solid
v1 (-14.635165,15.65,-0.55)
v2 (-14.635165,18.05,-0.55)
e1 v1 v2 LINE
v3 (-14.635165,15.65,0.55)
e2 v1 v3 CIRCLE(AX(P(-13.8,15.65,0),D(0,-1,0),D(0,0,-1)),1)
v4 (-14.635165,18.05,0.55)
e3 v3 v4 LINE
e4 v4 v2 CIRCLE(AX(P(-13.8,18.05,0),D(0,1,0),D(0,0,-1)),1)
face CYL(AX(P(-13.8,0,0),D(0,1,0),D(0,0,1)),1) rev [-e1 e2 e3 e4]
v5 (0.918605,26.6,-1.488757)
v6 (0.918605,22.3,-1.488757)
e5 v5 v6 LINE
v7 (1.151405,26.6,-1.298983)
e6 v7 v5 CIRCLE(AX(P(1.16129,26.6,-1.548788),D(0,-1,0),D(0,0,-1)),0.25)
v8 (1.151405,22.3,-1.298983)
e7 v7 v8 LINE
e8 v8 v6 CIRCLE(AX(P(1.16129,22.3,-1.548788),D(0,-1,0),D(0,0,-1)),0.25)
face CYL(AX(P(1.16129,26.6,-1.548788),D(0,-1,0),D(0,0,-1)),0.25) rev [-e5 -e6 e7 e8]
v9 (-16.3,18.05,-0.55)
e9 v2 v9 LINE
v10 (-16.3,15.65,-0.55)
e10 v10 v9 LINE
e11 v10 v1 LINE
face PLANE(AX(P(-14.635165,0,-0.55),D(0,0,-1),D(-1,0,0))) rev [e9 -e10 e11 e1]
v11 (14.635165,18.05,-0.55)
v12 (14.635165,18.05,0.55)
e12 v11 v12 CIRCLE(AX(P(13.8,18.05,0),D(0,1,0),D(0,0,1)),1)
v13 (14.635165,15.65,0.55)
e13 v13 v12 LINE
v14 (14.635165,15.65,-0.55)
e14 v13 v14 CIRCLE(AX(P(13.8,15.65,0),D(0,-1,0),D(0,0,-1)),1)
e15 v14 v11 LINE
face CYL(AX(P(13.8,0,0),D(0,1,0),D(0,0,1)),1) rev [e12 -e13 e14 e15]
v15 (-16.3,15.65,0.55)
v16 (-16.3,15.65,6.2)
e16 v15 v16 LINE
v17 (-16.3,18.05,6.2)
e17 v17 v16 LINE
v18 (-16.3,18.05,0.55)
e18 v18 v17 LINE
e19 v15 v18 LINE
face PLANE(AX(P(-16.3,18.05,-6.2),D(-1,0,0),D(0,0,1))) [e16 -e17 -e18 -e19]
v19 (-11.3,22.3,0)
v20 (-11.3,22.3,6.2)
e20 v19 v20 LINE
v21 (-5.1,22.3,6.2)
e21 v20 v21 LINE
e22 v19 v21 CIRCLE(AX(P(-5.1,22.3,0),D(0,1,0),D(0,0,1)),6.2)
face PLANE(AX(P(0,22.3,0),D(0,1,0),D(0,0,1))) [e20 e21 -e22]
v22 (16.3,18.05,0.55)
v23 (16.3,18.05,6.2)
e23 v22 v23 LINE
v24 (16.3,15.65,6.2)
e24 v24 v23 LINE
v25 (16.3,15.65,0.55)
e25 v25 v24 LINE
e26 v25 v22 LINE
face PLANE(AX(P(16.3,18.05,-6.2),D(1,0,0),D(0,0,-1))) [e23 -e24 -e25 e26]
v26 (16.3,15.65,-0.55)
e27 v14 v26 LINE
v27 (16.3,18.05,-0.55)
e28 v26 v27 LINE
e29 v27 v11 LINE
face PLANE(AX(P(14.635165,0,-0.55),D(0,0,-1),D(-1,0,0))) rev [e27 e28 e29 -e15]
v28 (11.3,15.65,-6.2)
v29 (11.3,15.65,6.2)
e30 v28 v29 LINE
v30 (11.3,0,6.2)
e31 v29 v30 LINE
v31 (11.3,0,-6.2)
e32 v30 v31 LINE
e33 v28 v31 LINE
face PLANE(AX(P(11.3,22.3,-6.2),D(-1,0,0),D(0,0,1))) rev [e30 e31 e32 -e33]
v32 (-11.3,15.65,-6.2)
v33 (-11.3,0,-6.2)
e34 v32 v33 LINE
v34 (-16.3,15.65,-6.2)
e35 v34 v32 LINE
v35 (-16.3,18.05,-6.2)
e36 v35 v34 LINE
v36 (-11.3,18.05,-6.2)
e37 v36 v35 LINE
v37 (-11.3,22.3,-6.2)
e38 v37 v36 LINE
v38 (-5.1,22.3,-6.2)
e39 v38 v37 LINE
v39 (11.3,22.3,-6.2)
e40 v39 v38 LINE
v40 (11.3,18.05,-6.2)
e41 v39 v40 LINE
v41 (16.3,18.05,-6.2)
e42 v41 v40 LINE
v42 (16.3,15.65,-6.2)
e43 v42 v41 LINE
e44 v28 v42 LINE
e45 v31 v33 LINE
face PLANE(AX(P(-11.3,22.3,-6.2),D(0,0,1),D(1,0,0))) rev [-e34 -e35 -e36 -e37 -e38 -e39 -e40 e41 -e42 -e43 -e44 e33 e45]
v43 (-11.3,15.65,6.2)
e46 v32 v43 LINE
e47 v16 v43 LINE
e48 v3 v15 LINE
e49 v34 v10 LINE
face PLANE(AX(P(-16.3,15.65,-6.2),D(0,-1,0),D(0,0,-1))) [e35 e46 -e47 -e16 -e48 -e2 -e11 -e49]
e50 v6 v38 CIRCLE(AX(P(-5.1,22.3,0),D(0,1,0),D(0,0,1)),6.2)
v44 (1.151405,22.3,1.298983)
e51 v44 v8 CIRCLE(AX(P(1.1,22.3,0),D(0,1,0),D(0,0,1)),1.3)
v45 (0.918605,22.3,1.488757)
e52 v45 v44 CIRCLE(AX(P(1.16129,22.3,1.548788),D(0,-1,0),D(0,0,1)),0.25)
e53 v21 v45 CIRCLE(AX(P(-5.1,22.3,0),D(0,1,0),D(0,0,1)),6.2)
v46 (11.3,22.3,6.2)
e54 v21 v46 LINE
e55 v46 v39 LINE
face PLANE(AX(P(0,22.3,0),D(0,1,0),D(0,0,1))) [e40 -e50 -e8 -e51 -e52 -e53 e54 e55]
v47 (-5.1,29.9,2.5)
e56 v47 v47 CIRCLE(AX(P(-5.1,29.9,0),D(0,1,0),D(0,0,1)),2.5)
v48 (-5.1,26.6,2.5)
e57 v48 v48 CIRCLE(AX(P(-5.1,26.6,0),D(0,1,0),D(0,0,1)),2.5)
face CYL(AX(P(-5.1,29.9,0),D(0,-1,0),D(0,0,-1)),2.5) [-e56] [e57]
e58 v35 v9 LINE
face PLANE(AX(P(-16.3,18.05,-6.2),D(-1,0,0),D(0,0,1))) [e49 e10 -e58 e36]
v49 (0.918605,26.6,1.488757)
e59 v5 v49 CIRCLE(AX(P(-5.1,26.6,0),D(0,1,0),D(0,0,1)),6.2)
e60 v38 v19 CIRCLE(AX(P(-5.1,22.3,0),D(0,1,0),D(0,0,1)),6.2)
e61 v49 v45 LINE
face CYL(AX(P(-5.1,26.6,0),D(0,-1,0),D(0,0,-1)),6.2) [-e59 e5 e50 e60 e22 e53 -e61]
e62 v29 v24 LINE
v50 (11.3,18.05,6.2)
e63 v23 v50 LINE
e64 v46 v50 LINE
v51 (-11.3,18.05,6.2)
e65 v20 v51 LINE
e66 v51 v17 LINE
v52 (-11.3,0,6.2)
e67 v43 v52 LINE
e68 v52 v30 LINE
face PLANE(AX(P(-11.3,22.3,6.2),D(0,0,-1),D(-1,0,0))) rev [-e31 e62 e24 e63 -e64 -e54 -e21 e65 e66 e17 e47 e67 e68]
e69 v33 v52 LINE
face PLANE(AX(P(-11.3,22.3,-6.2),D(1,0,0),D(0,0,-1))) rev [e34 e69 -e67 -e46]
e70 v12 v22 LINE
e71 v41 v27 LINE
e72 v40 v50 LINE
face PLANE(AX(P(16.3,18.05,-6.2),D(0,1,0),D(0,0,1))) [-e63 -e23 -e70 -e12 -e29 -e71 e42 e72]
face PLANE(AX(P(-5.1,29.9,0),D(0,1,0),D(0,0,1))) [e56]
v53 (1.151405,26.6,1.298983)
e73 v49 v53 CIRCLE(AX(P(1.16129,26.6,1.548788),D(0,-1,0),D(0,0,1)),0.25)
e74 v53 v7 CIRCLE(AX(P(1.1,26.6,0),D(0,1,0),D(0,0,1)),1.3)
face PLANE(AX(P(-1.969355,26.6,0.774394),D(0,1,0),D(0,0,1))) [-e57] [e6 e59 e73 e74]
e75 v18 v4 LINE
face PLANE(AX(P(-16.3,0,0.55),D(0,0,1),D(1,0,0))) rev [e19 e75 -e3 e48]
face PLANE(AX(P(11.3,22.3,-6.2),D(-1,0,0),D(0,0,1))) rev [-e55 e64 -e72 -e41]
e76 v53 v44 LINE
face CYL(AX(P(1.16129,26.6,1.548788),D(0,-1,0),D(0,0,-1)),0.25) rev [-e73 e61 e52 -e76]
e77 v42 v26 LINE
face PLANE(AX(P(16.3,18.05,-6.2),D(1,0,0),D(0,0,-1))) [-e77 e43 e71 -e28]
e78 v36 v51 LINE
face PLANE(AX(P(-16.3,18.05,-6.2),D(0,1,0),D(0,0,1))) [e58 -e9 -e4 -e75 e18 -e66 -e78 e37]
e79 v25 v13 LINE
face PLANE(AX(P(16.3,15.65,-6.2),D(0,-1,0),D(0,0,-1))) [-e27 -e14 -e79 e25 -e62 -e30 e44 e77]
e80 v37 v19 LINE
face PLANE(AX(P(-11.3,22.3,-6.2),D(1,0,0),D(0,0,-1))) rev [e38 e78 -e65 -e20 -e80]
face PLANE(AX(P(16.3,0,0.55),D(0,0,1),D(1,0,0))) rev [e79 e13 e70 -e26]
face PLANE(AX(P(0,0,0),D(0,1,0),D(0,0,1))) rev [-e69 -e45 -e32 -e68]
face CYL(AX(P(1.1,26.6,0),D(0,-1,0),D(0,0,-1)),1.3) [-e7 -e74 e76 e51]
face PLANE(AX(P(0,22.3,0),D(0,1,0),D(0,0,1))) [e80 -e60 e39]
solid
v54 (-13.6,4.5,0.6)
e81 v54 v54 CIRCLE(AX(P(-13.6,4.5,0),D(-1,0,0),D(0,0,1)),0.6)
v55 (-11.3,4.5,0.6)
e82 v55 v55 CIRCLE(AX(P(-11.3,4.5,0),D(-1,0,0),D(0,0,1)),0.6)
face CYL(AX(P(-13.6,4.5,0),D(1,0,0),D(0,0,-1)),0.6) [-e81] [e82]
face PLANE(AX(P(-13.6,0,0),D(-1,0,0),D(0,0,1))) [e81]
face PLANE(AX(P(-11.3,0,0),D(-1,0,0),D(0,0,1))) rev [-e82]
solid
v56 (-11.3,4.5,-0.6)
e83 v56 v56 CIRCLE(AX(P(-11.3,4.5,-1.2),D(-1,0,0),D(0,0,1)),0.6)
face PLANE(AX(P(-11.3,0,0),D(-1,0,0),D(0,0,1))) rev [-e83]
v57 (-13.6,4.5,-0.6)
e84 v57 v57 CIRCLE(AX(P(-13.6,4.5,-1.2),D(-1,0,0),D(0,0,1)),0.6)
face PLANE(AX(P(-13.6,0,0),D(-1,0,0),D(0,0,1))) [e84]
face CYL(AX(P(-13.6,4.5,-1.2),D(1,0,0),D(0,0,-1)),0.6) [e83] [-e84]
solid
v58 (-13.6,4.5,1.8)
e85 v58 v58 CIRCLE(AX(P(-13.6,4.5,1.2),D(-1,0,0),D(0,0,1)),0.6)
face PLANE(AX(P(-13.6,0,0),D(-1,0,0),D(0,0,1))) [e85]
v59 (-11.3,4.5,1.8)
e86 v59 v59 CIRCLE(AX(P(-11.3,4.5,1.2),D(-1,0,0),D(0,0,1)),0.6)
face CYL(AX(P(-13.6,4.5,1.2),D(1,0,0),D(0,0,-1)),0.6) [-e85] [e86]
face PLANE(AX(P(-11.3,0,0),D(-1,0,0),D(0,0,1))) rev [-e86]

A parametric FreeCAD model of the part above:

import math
import FreeCAD as App
import Part
import Sketcher

V = App.Vector


def add_polygon(sketch, points):
    """Adds a closed chain of lines whose ends are joined by coincident constraints."""
    first, n = sketch.GeometryCount, len(points)
    for a, b in zip(points, points[1:] + points[:1]):
        sketch.addGeometry(Part.LineSegment(App.Vector(*a, 0), App.Vector(*b, 0)), False)
    for i in range(n):
        sketch.addConstraint(Sketcher.Constraint("Coincident", first + i, 2, first + (i + 1) % n, 1))

doc = App.newDocument("Part")
body = doc.addObject("PartDesign::Body", "Body")

# Sketch on XZ plane
sketch1 = body.newObject("Sketcher::SketchObject", "Sketch")
sketch1.AttachmentSupport = (doc.getObject("XZ_Plane"), [""])
sketch1.MapMode = "FlatFace"
add_polygon(sketch1, [(-11, -6), (-11, 6), (11, 6), (11, -6)])  # lines 0-3
sketch1.addConstraint([
    Sketcher.Constraint("Vertical", 0),
    Sketcher.Constraint("Horizontal", 1),
    Sketcher.Constraint("Vertical", 2),
    Sketcher.Constraint("Horizontal", 3),
    Sketcher.Constraint("Symmetric", 0, 2, 2, 2, -1, 1),
    Sketcher.Constraint("DistanceX", 1, 1, 1, 2, 22.6),
    Sketcher.Constraint("DistanceY", 0, 1, 0, 2, 12.4),
])
pad1 = body.newObject("PartDesign::Pad", "Pad")
pad1.Profile = sketch1
pad1.Length = 22.3
pad1.Reversed = True

# Sketch on XY plane
sketch2 = body.newObject("Sketcher::SketchObject", "Sketch001")
sketch2.AttachmentSupport = (doc.getObject("XY_Plane"), [""])
sketch2.MapMode = "FlatFace"
sketch2.AttachmentOffset = App.Placement(V(0, 0, 6.2), App.Rotation())
add_polygon(sketch2, [(11.3, 18.1), (11.3, 15.7), (16.3, 15.7), (16.3, 18.1)])  # lines 0-3
add_polygon(sketch2, [(-16.3, 18.1), (-16.3, 15.7), (-11.3, 15.7), (-11.3, 18.1)])  # lines 4-7
sketch2.addConstraint([
    Sketcher.Constraint("Vertical", 0),
    Sketcher.Constraint("Horizontal", 1),
    Sketcher.Constraint("Vertical", 2),
    Sketcher.Constraint("Horizontal", 3),
    Sketcher.Constraint("Vertical", 4),
    Sketcher.Constraint("Horizontal", 5),
    Sketcher.Constraint("Vertical", 6),
    Sketcher.Constraint("Horizontal", 7),
    Sketcher.Constraint("Symmetric", 1, 2, 4, 2, -2),
    Sketcher.Constraint("Symmetric", 3, 2, 6, 2, -2),
    Sketcher.Constraint("DistanceX", 1, 1, 1, 2, 5.0),
    Sketcher.Constraint("DistanceY", 0, 2, 0, 1, 2.4),
    Sketcher.Constraint("DistanceX", -1, 1, 0, 2, 11.3),
    Sketcher.Constraint("DistanceY", -1, 1, 0, 2, 15.65),
])
pad2 = body.newObject("PartDesign::Pad", "Pad001")
pad2.Profile = sketch2
pad2.Length = 12.4
pad2.Reversed = True

# Sketch on XZ plane
sketch3 = body.newObject("Sketcher::SketchObject", "Sketch002")
sketch3.AttachmentSupport = (doc.getObject("XZ_Plane"), [""])
sketch3.MapMode = "FlatFace"
sketch3.AttachmentOffset = App.Placement(V(0, 0, -18.05), App.Rotation())
sketch3.addGeometry([
    Part.LineSegment(V(16.3, -0.6, 0), V(14.6, -0.6, 0)),  # 0
    Part.ArcOfCircle(Part.Circle(V(13.8, 0, 0), V(0, 0, 1), 1), math.radians(33), math.radians(327)),  # 1
    Part.LineSegment(V(14.6, 0.6, 0), V(16.3, 0.6, 0)),  # 2
    Part.LineSegment(V(16.3, 0.6, 0), V(16.3, -0.6, 0)),  # 3
    Part.LineSegment(V(-16.3, 0.6, 0), V(-14.6, 0.6, 0)),  # 4
    Part.ArcOfCircle(Part.Circle(V(-13.8, 0, 0), V(0, 0, 1), 1), math.radians(-147), math.radians(147)),  # 5
    Part.LineSegment(V(-14.6, -0.6, 0), V(-16.3, -0.6, 0)),  # 6
    Part.LineSegment(V(-16.3, -0.6, 0), V(-16.3, 0.6, 0)),  # 7
], False)
sketch3.addConstraint([
    Sketcher.Constraint("Coincident", 0, 2, 1, 2),
    Sketcher.Constraint("Coincident", 1, 1, 2, 1),
    Sketcher.Constraint("Coincident", 2, 2, 3, 1),
    Sketcher.Constraint("Coincident", 3, 2, 0, 1),
    Sketcher.Constraint("Coincident", 4, 2, 5, 2),
    Sketcher.Constraint("Coincident", 5, 1, 6, 1),
    Sketcher.Constraint("Coincident", 6, 2, 7, 1),
    Sketcher.Constraint("Coincident", 7, 2, 4, 1),
    Sketcher.Constraint("Horizontal", 0),
    Sketcher.Constraint("Horizontal", 2),
    Sketcher.Constraint("Vertical", 3),
    Sketcher.Constraint("Horizontal", 4),
    Sketcher.Constraint("Horizontal", 6),
    Sketcher.Constraint("Vertical", 7),
    Sketcher.Constraint("Equal", 1, 5),
    Sketcher.Constraint("Symmetric", 1, 3, 5, 3, -1, 1),
    Sketcher.Constraint("Symmetric", 2, 2, 6, 2, -1, 1),
    Sketcher.Constraint("Symmetric", 1, 1, 4, 2, -2),
    Sketcher.Constraint("Horizontal", 3, 2, 5, 1),
    Sketcher.Constraint("Radius", 1, 1.0),
    Sketcher.Constraint("DistanceY", 3, 2, 3, 1, 1.1),
    Sketcher.Constraint("DistanceX", -1, 1, 1, 3, 13.8),
    Sketcher.Constraint("DistanceX", -1, 1, 2, 2, 16.3),
])
pocket1 = body.newObject("PartDesign::Pocket", "Pocket")
pocket1.Profile = sketch3
pocket1.Type = "ThroughAll"
pocket1.Reversed = True

# Sketch on XZ plane
sketch4 = body.newObject("Sketcher::SketchObject", "Sketch003")
sketch4.AttachmentSupport = (doc.getObject("XZ_Plane"), [""])
sketch4.MapMode = "FlatFace"
sketch4.AttachmentOffset = App.Placement(V(0, 0, -22.3), App.Rotation())
sketch4.addGeometry([
    Part.ArcOfCircle(Part.Circle(V(-5.1, 0, 0), V(0, 0, 1), 6.2), math.radians(14), math.radians(346)),
    Part.ArcOfCircle(Part.Circle(V(1.16, 1.55, 0), V(0, 0, 1), 0.25), math.radians(-166), math.radians(-92)),
    Part.ArcOfCircle(Part.Circle(V(1.1, 0, 0), V(0, 0, 1), 1.3), math.radians(-88), math.radians(88)),
    Part.ArcOfCircle(Part.Circle(V(1.16, -1.55, 0), V(0, 0, 1), 0.25), math.radians(92), math.radians(166)),
], False)
sketch4.addConstraint([
    Sketcher.Constraint("Tangent", 0, 1, 1, 1),
    Sketcher.Constraint("Tangent", 1, 2, 2, 2),
    Sketcher.Constraint("Tangent", 2, 1, 3, 1),
    Sketcher.Constraint("Tangent", 3, 2, 0, 2),
    Sketcher.Constraint("Equal", 1, 3),
    Sketcher.Constraint("Symmetric", 1, 3, 3, 3, -1),
    Sketcher.Constraint("Radius", 0, 6.2),
    Sketcher.Constraint("Radius", 2, 1.3),
    Sketcher.Constraint("Radius", 1, 0.25),
    Sketcher.Constraint("DistanceX", 0, 3, -1, 1, 5.1),
    Sketcher.Constraint("DistanceX", -1, 1, 2, 3, 1.1),
])
pad3 = body.newObject("PartDesign::Pad", "Pad002")
pad3.Profile = sketch4
pad3.Length = 4.3
pad3.Reversed = True

# Sketch on XZ plane
sketch5 = body.newObject("Sketcher::SketchObject", "Sketch004")
sketch5.AttachmentSupport = (doc.getObject("XZ_Plane"), [""])
sketch5.MapMode = "FlatFace"
sketch5.AttachmentOffset = App.Placement(V(0, 0, -26.6), App.Rotation())
sketch5.addGeometry(Part.Circle(V(-5.1, 0, 0), V(0, 0, 1), 2.5), False)
sketch5.addConstraint([
    Sketcher.Constraint("PointOnObject", 0, 3, -1),
    Sketcher.Constraint("Diameter", 0, 5.0),
    Sketcher.Constraint("DistanceX", 0, 3, -1, 1, 5.1),
])
pad4 = body.newObject("PartDesign::Pad", "Pad003")
pad4.Profile = sketch5
pad4.Length = 3.3
pad4.Reversed = True
body2 = doc.addObject("PartDesign::Body", "Body001")

# Sketch on YZ plane
sketch6 = body2.newObject("Sketcher::SketchObject", "Sketch005")
sketch6.AttachmentSupport = (doc.getObject("YZ_Plane001"), [""])
sketch6.MapMode = "FlatFace"
sketch6.AttachmentOffset = App.Placement(V(0, 0, -11.3), App.Rotation())
sketch6.addGeometry(Part.Circle(V(4.5, 0, 0), V(0, 0, 1), 0.6), False)
sketch6.addConstraint([
    Sketcher.Constraint("PointOnObject", 0, 3, -1),
    Sketcher.Constraint("Diameter", 0, 1.2),
    Sketcher.Constraint("DistanceX", -1, 1, 0, 3, 4.5),
])
pad5 = body2.newObject("PartDesign::Pad", "Pad004")
pad5.Profile = sketch6
pad5.Length = 2.3
pad5.Reversed = True
body3 = doc.addObject("PartDesign::Body", "Body002")

# Sketch on YZ plane
sketch7 = body3.newObject("Sketcher::SketchObject", "Sketch006")
sketch7.AttachmentSupport = (doc.getObject("YZ_Plane002"), [""])
sketch7.MapMode = "FlatFace"
sketch7.AttachmentOffset = App.Placement(V(0, 0, -11.3), App.Rotation())
sketch7.addGeometry(Part.Circle(V(4.5, 1.2, 0), V(0, 0, 1), 0.6), False)
sketch7.addConstraint([
    Sketcher.Constraint("Diameter", 0, 1.2),
    Sketcher.Constraint("DistanceX", -1, 1, 0, 3, 4.5),
    Sketcher.Constraint("DistanceY", -1, 1, 0, 3, 1.2),
])
pad6 = body3.newObject("PartDesign::Pad", "Pad005")
pad6.Profile = sketch7
pad6.Length = 2.3
pad6.Reversed = True
body4 = doc.addObject("PartDesign::Body", "Body003")

# Sketch on YZ plane
sketch8 = body4.newObject("Sketcher::SketchObject", "Sketch007")
sketch8.AttachmentSupport = (doc.getObject("YZ_Plane003"), [""])
sketch8.MapMode = "FlatFace"
sketch8.AttachmentOffset = App.Placement(V(0, 0, -11.3), App.Rotation())
sketch8.addGeometry(Part.Circle(V(4.5, -1.2, 0), V(0, 0, 1), 0.6), False)
sketch8.addConstraint([
    Sketcher.Constraint("Diameter", 0, 1.2),
    Sketcher.Constraint("DistanceX", -1, 1, 0, 3, 4.5),
    Sketcher.Constraint("DistanceY", 0, 3, -1, 1, 1.2),
])
pad7 = body4.newObject("PartDesign::Pad", "Pad006")
pad7.Profile = sketch8
pad7.Length = 2.3
pad7.Reversed = True

doc.recompute()
